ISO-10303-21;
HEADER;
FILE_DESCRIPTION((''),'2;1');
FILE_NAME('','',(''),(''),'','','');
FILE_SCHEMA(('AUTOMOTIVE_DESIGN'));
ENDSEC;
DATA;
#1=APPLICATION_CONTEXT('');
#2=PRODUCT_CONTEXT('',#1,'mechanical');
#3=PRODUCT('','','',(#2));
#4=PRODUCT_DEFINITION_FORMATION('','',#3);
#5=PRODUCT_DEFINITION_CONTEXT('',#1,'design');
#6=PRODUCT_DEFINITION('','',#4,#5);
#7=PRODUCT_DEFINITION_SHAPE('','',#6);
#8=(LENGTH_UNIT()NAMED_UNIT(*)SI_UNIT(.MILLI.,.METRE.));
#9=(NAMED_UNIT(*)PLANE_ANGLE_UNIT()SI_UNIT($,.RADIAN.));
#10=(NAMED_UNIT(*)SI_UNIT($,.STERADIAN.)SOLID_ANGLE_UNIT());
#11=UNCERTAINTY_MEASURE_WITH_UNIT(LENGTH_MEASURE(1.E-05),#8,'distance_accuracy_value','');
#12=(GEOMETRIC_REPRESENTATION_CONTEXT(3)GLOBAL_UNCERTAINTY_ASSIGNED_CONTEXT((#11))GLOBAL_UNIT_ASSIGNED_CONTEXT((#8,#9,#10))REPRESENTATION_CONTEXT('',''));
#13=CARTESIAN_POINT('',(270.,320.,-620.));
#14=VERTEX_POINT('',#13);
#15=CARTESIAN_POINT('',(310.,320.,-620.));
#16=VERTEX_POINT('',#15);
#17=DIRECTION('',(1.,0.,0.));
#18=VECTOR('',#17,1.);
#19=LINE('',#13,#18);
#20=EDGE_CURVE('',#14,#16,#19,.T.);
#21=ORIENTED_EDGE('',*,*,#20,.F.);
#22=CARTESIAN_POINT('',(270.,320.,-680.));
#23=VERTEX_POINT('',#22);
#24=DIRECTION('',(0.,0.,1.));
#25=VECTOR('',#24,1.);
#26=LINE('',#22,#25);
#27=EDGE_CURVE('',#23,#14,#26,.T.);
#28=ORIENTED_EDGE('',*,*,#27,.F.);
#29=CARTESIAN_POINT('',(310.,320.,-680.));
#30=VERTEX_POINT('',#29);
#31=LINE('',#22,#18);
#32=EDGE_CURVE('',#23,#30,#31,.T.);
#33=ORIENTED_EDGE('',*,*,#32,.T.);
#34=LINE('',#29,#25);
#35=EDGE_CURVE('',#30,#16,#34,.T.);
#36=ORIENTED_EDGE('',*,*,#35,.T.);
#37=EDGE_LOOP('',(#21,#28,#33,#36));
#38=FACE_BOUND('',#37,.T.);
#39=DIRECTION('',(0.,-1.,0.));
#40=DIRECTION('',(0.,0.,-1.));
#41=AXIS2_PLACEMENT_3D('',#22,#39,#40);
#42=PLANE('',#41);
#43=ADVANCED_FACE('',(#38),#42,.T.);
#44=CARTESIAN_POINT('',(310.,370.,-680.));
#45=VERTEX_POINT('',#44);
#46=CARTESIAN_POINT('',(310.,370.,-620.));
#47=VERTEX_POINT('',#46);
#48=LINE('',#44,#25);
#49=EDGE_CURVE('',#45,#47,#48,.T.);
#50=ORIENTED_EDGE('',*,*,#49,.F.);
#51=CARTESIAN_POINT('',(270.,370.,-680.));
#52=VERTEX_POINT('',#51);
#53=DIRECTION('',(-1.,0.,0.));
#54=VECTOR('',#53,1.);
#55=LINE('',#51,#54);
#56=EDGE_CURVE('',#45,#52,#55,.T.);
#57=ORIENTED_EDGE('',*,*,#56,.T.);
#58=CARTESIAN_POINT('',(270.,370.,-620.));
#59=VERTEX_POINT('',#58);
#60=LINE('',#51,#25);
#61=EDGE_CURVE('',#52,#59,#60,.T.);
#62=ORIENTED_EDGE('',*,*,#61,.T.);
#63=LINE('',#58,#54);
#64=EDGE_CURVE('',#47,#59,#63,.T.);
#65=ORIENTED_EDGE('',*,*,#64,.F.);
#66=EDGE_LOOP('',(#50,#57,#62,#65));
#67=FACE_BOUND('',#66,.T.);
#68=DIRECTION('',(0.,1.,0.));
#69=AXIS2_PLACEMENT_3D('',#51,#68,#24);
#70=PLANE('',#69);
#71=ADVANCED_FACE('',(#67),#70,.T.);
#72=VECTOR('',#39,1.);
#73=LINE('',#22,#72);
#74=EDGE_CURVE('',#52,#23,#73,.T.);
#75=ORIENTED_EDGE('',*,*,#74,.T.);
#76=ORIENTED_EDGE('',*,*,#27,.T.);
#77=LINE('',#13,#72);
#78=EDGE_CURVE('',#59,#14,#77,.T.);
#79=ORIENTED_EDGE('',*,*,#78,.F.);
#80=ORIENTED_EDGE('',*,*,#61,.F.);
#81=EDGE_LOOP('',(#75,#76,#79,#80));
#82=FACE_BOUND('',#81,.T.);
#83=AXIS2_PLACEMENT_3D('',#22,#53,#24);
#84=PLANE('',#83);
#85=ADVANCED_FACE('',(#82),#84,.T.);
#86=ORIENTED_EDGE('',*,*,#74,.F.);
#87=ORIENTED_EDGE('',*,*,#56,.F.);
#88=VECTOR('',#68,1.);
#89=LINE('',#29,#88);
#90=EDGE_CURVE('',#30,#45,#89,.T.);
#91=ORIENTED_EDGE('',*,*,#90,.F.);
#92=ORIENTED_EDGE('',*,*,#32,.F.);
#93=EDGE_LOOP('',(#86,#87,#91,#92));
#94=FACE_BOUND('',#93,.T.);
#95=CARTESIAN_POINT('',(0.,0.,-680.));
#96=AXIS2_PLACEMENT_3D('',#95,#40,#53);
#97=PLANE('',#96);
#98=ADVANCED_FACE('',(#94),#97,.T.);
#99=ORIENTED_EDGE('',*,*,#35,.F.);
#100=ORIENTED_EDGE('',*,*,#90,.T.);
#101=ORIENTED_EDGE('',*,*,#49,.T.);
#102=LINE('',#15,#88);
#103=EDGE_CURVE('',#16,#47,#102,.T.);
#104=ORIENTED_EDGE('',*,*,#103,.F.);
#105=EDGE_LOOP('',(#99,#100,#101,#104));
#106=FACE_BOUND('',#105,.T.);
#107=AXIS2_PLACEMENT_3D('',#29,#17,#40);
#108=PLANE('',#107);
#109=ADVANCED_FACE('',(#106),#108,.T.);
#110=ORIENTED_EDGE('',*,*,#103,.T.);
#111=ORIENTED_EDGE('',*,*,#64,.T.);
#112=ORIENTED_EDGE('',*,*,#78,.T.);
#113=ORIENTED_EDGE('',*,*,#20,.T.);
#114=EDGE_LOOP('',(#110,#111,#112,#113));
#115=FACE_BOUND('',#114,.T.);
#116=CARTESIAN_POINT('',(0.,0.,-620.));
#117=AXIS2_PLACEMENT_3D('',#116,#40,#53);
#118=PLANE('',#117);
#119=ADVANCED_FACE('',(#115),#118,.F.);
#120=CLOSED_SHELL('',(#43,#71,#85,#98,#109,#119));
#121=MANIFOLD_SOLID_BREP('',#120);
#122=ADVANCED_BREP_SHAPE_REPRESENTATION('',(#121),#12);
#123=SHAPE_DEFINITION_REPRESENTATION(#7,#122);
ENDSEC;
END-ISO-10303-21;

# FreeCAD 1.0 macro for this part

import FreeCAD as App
import Part
import Sketcher
from FreeCAD import Vector
Q = App.Units.Quantity


def add_polygon(sketch, points):
    """Adds a closed chain of lines whose ends are joined by coincident constraints."""
    first, n = sketch.GeometryCount, len(points)
    for a, b in zip(points, points[1:] + points[:1]):
        sketch.addGeometry(Part.LineSegment(App.Vector(*a, 0), App.Vector(*b, 0)), False)
    for i in range(n):
        sketch.addConstraint(Sketcher.Constraint("Coincident", first + i, 2, first + (i + 1) % n, 1))

doc = App.newDocument("Part")
body = doc.addObject("PartDesign::Body", "Body")

sketch1 = body.newObject("Sketcher::SketchObject", "Sketch")
sketch1.AttachmentSupport = (doc.getObject("XY_Plane"), [""])
sketch1.MapMode = "FlatFace"
sketch1.AttachmentOffset = App.Placement(Vector(0, 0, -620), App.Rotation())
add_polygon(sketch1, [(270, 370), (270, 320), (310, 320), (310, 370)])
sketch1.addConstraint([
    Sketcher.Constraint("Vertical", 0),
    Sketcher.Constraint("Horizontal", 1),
    Sketcher.Constraint("Vertical", 2),
    Sketcher.Constraint("Horizontal", 3),
    Sketcher.Constraint("DistanceX", 1, 1, 1, 2, Q("40 mm")),
    Sketcher.Constraint("DistanceY", 0, 2, 0, 1, Q("50 mm")),
    Sketcher.Constraint("DistanceX", -1, 1, 0, 2, Q("270 mm")),
    Sketcher.Constraint("DistanceY", -1, 1, 0, 2, Q("320 mm")),
])
pad1 = body.newObject("PartDesign::Pad", "Pad")
pad1.Profile = sketch1
pad1.Length = 60
pad1.Reversed = True

doc.recompute()
